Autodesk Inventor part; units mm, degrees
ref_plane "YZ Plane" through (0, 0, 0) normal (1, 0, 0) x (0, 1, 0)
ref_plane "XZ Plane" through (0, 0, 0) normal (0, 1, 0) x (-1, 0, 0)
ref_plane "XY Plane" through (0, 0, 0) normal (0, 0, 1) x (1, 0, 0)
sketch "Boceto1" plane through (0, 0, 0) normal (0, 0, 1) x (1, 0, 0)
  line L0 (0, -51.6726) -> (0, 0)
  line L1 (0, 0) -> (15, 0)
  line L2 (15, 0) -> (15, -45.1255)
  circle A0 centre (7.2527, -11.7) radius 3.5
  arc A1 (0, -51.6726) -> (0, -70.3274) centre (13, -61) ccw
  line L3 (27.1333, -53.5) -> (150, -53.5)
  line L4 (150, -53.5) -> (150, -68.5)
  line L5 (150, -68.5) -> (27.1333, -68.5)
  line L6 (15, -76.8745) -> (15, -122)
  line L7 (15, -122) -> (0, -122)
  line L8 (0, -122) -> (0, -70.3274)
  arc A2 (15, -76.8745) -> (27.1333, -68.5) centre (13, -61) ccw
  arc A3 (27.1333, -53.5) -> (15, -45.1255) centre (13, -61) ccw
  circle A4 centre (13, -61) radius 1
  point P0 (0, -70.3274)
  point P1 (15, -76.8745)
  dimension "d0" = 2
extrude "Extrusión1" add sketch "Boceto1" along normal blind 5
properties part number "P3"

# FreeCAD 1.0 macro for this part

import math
import FreeCAD as App
import Part
import Sketcher

V = App.Vector
Q = App.Units.Quantity

doc = App.newDocument("Part")
body = doc.addObject("PartDesign::Body", "Body")

# Sketch on XY plane
sketch1 = body.newObject("Sketcher::SketchObject", "Sketch")
sketch1.AttachmentSupport = (doc.getObject("XY_Plane"), [""])
sketch1.MapMode = "FlatFace"
sketch1.addGeometry(Part.LineSegment(V(0, 0, 0), V(0, -51.7, 0)), False)
sketch1.addGeometry(Part.ArcOfCircle(Part.Circle(V(13, -61, 0), V(0, 0, 1), 16), math.radians(144), math.radians(216)), False)
sketch1.addGeometry(Part.LineSegment(V(0, -70.3, 0), V(0, -122, 0)), False)
sketch1.addGeometry(Part.LineSegment(V(0, -122, 0), V(15, -122, 0)), False)
sketch1.addGeometry(Part.LineSegment(V(15, -122, 0), V(15, -76.9, 0)), False)
sketch1.addGeometry(Part.ArcOfCircle(Part.Circle(V(13, -61, 0), V(0, 0, 1), 16), math.radians(-83), math.radians(-28)), False)
sketch1.addGeometry(Part.LineSegment(V(27.1, -68.5, 0), V(150, -68.5, 0)), False)
sketch1.addGeometry(Part.LineSegment(V(150, -68.5, 0), V(150, -53.5, 0)), False)
sketch1.addGeometry(Part.LineSegment(V(150, -53.5, 0), V(27.1, -53.5, 0)), False)
sketch1.addGeometry(Part.ArcOfCircle(Part.Circle(V(13, -61, 0), V(0, 0, 1), 16), math.radians(28), math.radians(83)), False)
sketch1.addGeometry(Part.LineSegment(V(15, -45.1, 0), V(15, 0, 0)), False)
sketch1.addGeometry(Part.LineSegment(V(15, 0, 0), V(0, 0, 0)), False)
sketch1.addGeometry(Part.Circle(V(13, -61, 0), V(0, 0, 1), 1), False)
sketch1.addGeometry(Part.Circle(V(7.3, -11.7, 0), V(0, 0, 1), 3.5), False)
sketch1.addConstraint(Sketcher.Constraint("Coincident", 0, 2, 1, 1))
sketch1.addConstraint(Sketcher.Constraint("Coincident", 1, 2, 2, 1))
sketch1.addConstraint(Sketcher.Constraint("Coincident", 2, 2, 3, 1))
sketch1.addConstraint(Sketcher.Constraint("Coincident", 3, 2, 4, 1))
sketch1.addConstraint(Sketcher.Constraint("Coincident", 4, 2, 5, 1))
sketch1.addConstraint(Sketcher.Constraint("Coincident", 5, 2, 6, 1))
sketch1.addConstraint(Sketcher.Constraint("Coincident", 6, 2, 7, 1))
sketch1.addConstraint(Sketcher.Constraint("Coincident", 7, 2, 8, 1))
sketch1.addConstraint(Sketcher.Constraint("Coincident", 8, 2, 9, 1))
sketch1.addConstraint(Sketcher.Constraint("Coincident", 9, 2, 10, 1))
sketch1.addConstraint(Sketcher.Constraint("Coincident", 10, 2, 11, 1))
sketch1.addConstraint(Sketcher.Constraint("Coincident", 11, 2, 0, 1))
sketch1.addConstraint(Sketcher.Constraint("Vertical", 0))
sketch1.addConstraint(Sketcher.Constraint("Vertical", 2))
sketch1.addConstraint(Sketcher.Constraint("Horizontal", 3))
sketch1.addConstraint(Sketcher.Constraint("Vertical", 4))
sketch1.addConstraint(Sketcher.Constraint("Horizontal", 6))
sketch1.addConstraint(Sketcher.Constraint("Vertical", 7))
sketch1.addConstraint(Sketcher.Constraint("Horizontal", 8))
sketch1.addConstraint(Sketcher.Constraint("Vertical", 10))
sketch1.addConstraint(Sketcher.Constraint("Horizontal", 11))
sketch1.addConstraint(Sketcher.Constraint("Coincident", 11, 2, -1, 1))
sketch1.addConstraint(Sketcher.Constraint("Coincident", 5, 3, 1, 3))
sketch1.addConstraint(Sketcher.Constraint("Coincident", 9, 3, 1, 3))
sketch1.addConstraint(Sketcher.Constraint("Coincident", 12, 3, 1, 3))
sketch1.addConstraint(Sketcher.Constraint("Equal", 1, 5))
sketch1.addConstraint(Sketcher.Constraint("Equal", 5, 9))
sketch1.addConstraint(Sketcher.Constraint("PointOnObject", 1, 2, -2))
sketch1.addConstraint(Sketcher.Constraint("Vertical", 5, 2, 8, 2))
sketch1.addConstraint(Sketcher.Constraint("Vertical", 4, 2, 9, 2))
sketch1.addConstraint(Sketcher.Constraint("Equal", 0, 2))
sketch1.addConstraint(Sketcher.Constraint("Equal", 11, 7))
sketch1.addConstraint(Sketcher.Constraint("Diameter", 12, Q("2 mm")))
sketch1.addConstraint(Sketcher.Constraint("Diameter", 13, Q("7 mm")))
sketch1.addConstraint(Sketcher.Constraint("Radius", 1, Q("16 mm")))
sketch1.addConstraint(Sketcher.Constraint("DistanceX", 1, 3, 3, 2, Q("2 mm")))
sketch1.addConstraint(Sketcher.Constraint("DistanceX", 3, 1, 3, 2, Q("15 mm")))
sketch1.addConstraint(Sketcher.Constraint("DistanceY", 1, 3, -1, 1, Q("61 mm")))
sketch1.addConstraint(Sketcher.Constraint("DistanceX", -1, 1, 6, 2, Q("150 mm")))
sketch1.addConstraint(Sketcher.Constraint("DistanceY", 13, 3, -1, 1, Q("11.7 mm")))
sketch1.addConstraint(Sketcher.Constraint("DistanceX", -1, 1, 13, 3, Q("7.2527 mm")))
pad1 = body.newObject("PartDesign::Pad", "Pad")
pad1.Profile = sketch1
pad1.Length = 5

doc.recompute()
